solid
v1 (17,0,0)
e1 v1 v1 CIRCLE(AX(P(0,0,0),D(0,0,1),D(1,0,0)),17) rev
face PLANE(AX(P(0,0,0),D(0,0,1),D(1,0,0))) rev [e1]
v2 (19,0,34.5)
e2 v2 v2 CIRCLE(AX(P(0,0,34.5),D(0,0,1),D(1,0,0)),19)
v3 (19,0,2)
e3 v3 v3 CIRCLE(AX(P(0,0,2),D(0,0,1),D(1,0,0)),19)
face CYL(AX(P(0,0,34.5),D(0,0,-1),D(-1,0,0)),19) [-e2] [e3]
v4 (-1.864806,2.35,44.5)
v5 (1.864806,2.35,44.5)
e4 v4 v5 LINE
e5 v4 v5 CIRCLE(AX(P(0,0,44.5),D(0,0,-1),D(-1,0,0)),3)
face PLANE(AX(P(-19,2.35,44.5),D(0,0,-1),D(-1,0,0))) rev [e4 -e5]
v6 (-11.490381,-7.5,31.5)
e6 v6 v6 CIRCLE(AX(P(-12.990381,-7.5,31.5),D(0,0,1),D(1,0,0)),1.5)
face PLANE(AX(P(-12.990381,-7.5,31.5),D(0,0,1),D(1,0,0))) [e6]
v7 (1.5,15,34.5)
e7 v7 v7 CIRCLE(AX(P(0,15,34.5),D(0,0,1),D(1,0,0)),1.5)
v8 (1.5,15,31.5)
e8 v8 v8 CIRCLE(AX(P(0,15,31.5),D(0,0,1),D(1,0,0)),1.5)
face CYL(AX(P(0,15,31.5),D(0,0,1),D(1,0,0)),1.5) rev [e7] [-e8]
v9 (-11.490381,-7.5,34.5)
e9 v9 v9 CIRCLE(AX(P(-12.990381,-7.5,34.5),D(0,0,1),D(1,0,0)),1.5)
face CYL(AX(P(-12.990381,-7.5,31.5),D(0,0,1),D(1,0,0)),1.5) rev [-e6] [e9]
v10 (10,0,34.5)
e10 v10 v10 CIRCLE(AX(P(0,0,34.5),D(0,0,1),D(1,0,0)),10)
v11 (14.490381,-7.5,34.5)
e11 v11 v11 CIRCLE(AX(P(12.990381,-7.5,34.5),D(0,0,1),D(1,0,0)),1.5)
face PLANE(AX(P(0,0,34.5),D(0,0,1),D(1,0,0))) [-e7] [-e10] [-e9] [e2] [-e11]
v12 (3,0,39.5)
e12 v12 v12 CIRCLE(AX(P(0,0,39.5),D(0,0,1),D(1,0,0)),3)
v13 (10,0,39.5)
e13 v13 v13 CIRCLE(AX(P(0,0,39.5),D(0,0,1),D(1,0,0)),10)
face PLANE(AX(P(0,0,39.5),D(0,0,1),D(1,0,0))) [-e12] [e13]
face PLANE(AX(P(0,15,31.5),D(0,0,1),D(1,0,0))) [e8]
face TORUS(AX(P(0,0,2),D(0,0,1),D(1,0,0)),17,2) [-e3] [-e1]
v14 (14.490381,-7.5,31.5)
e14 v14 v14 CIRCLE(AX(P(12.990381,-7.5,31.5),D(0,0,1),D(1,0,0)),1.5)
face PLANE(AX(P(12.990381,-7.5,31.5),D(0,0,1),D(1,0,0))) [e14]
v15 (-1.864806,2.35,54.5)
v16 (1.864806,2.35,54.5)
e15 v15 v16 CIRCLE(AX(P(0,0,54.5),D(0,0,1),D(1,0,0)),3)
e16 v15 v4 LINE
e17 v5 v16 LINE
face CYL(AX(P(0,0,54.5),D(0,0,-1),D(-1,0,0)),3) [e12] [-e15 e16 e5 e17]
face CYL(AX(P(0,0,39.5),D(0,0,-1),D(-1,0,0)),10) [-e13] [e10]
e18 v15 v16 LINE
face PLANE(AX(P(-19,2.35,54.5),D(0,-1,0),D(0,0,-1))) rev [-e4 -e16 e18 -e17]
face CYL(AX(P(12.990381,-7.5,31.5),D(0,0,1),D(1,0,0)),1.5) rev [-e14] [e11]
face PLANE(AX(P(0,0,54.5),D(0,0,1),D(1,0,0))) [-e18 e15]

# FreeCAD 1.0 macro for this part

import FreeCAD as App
import Part
import Sketcher
Q = App.Units.Quantity


def edges_at(feature, points):
    """Names of the edges that pass closest to the given points."""
    edges = feature.Shape.Edges
    near = lambda p: min(range(len(edges)), key=lambda i: edges[i].distToShape(Part.Vertex(*p))[0])
    return sorted({f"Edge{near(p) + 1}" for p in points})

doc = App.newDocument("Part")
body = doc.addObject("PartDesign::Body", "Body")

sketch1 = doc.addObject("Sketcher::SketchObject", "Sketch")
body.addObject(sketch1)
sketch1.AttachmentSupport = (doc.XY_Plane, [""])
sketch1.MapMode = "FlatFace"
sketch1.addGeometry(Part.Circle(App.Vector(0, 0, 0), App.Vector(0, 0, 1), 19), False)
sketch1.addConstraint(Sketcher.Constraint("Coincident", 0, 3, -1, 1))
sketch1.addConstraint(Sketcher.Constraint("Diameter", 0, Q("38 mm")))
pad1 = doc.addObject("PartDesign::Pad", "Pad")
body.addObject(pad1)
pad1.Profile = sketch1
pad1.Length = 34.5

sketch2 = doc.addObject("Sketcher::SketchObject", "Sketch001")
body.addObject(sketch2)
sketch2.AttachmentSupport = (doc.XY_Plane, [""])
sketch2.MapMode = "FlatFace"
sketch2.AttachmentOffset = App.Placement(App.Vector(0, 0, 34.5), App.Rotation())
sketch2.addGeometry(Part.Circle(App.Vector(0, 0, 0), App.Vector(0, 0, 1), 10), False)
sketch2.addConstraint(Sketcher.Constraint("Coincident", 0, 3, -1, 1))
sketch2.addConstraint(Sketcher.Constraint("Diameter", 0, Q("20 mm")))
pad2 = doc.addObject("PartDesign::Pad", "Pad001")
body.addObject(pad2)
pad2.Profile = sketch2
pad2.Length = 5

sketch3 = doc.addObject("Sketcher::SketchObject", "Sketch002")
body.addObject(sketch3)
sketch3.AttachmentSupport = (doc.XY_Plane, [""])
sketch3.MapMode = "FlatFace"
sketch3.AttachmentOffset = App.Placement(App.Vector(0, 0, 39.5), App.Rotation())
sketch3.addGeometry(Part.Circle(App.Vector(0, 0, 0), App.Vector(0, 0, 1), 3), False)
sketch3.addConstraint(Sketcher.Constraint("Coincident", 0, 3, -1, 1))
sketch3.addConstraint(Sketcher.Constraint("Diameter", 0, Q("6 mm")))
pad3 = doc.addObject("PartDesign::Pad", "Pad002")
body.addObject(pad3)
pad3.Profile = sketch3
pad3.Length = 15

sketch4 = doc.addObject("Sketcher::SketchObject", "Sketch003")
body.addObject(sketch4)
sketch4.AttachmentSupport = (doc.YZ_Plane, [""])
sketch4.MapMode = "FlatFace"
sketch4.addGeometry(Part.LineSegment(App.Vector(3, 54.5, 0), App.Vector(2.35, 54.5, 0)), False)
sketch4.addGeometry(Part.LineSegment(App.Vector(2.35, 54.5, 0), App.Vector(2.35, 44.5, 0)), False)
sketch4.addGeometry(Part.LineSegment(App.Vector(2.35, 44.5, 0), App.Vector(3, 44.5, 0)), False)
sketch4.addGeometry(Part.LineSegment(App.Vector(3, 44.5, 0), App.Vector(3, 54.5, 0)), False)
sketch4.addConstraint(Sketcher.Constraint("Coincident", 0, 2, 1, 1))
sketch4.addConstraint(Sketcher.Constraint("Coincident", 1, 2, 2, 1))
sketch4.addConstraint(Sketcher.Constraint("Coincident", 2, 2, 3, 1))
sketch4.addConstraint(Sketcher.Constraint("Coincident", 3, 2, 0, 1))
sketch4.addConstraint(Sketcher.Constraint("Horizontal", 0))
sketch4.addConstraint(Sketcher.Constraint("Vertical", 1))
sketch4.addConstraint(Sketcher.Constraint("Horizontal", 2))
sketch4.addConstraint(Sketcher.Constraint("Vertical", 3))
sketch4.addConstraint(Sketcher.Constraint("DistanceY", 1, 2, 1, 1, Q("10 mm")))
sketch4.addConstraint(Sketcher.Constraint("DistanceX", -1, 1, 2, 2, Q("3 mm")))
sketch4.addConstraint(Sketcher.Constraint("DistanceX", 0, 2, 0, 1, Q("0.65 mm")))
sketch4.addConstraint(Sketcher.Constraint("DistanceY", -1, 1, 0, 2, Q("54.5 mm")))
pocket1 = doc.addObject("PartDesign::Pocket", "Pocket")
body.addObject(pocket1)
pocket1.Profile = sketch4
pocket1.Type = "ThroughAll"
pocket1.Midplane = True
doc.recompute()

fillet = doc.addObject("PartDesign::Fillet", "Fillet")
body.addObject(fillet)
fillet.Base = (pocket1, edges_at(pocket1, [(-19, 0, 0)]))
fillet.Radius = 2

sketch5 = doc.addObject("Sketcher::SketchObject", "Sketch004")
body.addObject(sketch5)
sketch5.AttachmentSupport = (doc.XY_Plane, [""])
sketch5.MapMode = "FlatFace"
sketch5.AttachmentOffset = App.Placement(App.Vector(0, 0, 34.5), App.Rotation())
sketch5.addGeometry(Part.Circle(App.Vector(0, 15, 0), App.Vector(0, 0, 1), 1.5), False)
sketch5.addGeometry(Part.Circle(App.Vector(12.990381, -7.5, 0), App.Vector(0, 0, 1), 1.5), False)
sketch5.addGeometry(Part.Circle(App.Vector(-12.990381, -7.5, 0), App.Vector(0, 0, 1), 1.5), False)
sketch5.addConstraint(Sketcher.Constraint("Equal", 0, 1))
sketch5.addConstraint(Sketcher.Constraint("Equal", 1, 2))
sketch5.addConstraint(Sketcher.Constraint("Symmetric", 1, 3, 2, 3, -2))
sketch5.addConstraint(Sketcher.Constraint("PointOnObject", 0, 3, -2))
sketch5.addConstraint(Sketcher.Constraint("Diameter", 0, Q("3 mm")))
sketch5.addConstraint(Sketcher.Constraint("DistanceY", -1, 1, 0, 3, Q("15 mm")))
sketch5.addConstraint(Sketcher.Constraint("DistanceY", 1, 3, -1, 1, Q("7.5 mm")))
sketch5.addConstraint(Sketcher.Constraint("DistanceX", -1, 1, 1, 3, Q("12.990381 mm")))
pocket2 = doc.addObject("PartDesign::Pocket", "Pocket001")
body.addObject(pocket2)
pocket2.Profile = sketch5
pocket2.Length = 3

doc.recompute()
